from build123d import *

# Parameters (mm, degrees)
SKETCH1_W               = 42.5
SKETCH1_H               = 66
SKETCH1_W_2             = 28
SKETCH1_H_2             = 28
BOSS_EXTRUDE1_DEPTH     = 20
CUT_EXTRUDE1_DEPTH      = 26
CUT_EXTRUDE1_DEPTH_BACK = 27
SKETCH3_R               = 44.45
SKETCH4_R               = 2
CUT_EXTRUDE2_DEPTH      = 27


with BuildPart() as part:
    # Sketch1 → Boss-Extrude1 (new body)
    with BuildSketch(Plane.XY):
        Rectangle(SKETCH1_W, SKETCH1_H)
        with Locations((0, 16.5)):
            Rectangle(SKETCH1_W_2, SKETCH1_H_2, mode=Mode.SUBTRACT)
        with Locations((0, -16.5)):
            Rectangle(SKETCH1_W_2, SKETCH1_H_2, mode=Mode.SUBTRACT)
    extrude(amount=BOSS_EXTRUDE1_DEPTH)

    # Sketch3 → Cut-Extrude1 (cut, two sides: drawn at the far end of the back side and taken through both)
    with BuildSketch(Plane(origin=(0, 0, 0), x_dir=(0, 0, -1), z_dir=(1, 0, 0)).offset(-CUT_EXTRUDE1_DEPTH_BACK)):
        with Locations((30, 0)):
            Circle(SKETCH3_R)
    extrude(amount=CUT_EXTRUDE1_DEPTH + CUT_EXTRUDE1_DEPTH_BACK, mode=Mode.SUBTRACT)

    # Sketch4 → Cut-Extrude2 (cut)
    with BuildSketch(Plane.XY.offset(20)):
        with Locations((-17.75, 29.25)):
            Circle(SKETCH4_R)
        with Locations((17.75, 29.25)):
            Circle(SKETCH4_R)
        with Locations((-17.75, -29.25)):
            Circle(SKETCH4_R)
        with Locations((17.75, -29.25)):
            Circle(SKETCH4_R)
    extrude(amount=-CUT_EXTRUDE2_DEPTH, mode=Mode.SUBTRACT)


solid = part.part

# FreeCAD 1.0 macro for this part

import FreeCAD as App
import Part
import Sketcher

V = App.Vector


def add_polygon(sketch, points):
    """Adds a closed chain of lines whose ends are joined by coincident constraints."""
    first, n = sketch.GeometryCount, len(points)
    for a, b in zip(points, points[1:] + points[:1]):
        sketch.addGeometry(Part.LineSegment(App.Vector(*a, 0), App.Vector(*b, 0)), False)
    for i in range(n):
        sketch.addConstraint(Sketcher.Constraint("Coincident", first + i, 2, first + (i + 1) % n, 1))

doc = App.newDocument("Part")
params = doc.addObject("Spreadsheet::Sheet", "Params")
for row, (alias, value) in enumerate([
    ("sketch1_width", "28 mm"),
    ("sketch1_height", "66 mm"),
    ("sketch1_width2", "42.5 mm"),
    ("pad1_length", "20 mm"),
    ("sketch2_diameter", "88.9 mm"),
    ("sketch3_diameter", "4 mm"),
    ("pocket2_length", "27 mm"),
], start=1):
    params.set(f"A{row}", alias)
    params.set(f"B{row}", "=" + value)
    params.setAlias(f"B{row}", alias)

body = doc.addObject("PartDesign::Body", "Body")

# Sketch on XY plane
sketch1 = body.newObject("Sketcher::SketchObject", "Sketch")
sketch1.AttachmentSupport = (doc.getObject("XY_Plane"), [""])
sketch1.MapMode = "FlatFace"
add_polygon(sketch1, [(-21.25, 33), (-21.25, -33), (21.25, -33), (21.25, 33)])  # lines 0-3
add_polygon(sketch1, [(14, -30.5), (-14, -30.5), (-14, -2.5), (14, -2.5)])  # lines 4-7
add_polygon(sketch1, [(14, 2.5), (-14, 2.5), (-14, 30.5), (14, 30.5)])  # lines 8-11
sketch1.addConstraint(Sketcher.Constraint("Vertical", 0))
sketch1.addConstraint(Sketcher.Constraint("Horizontal", 1))
sketch1.addConstraint(Sketcher.Constraint("Vertical", 2))
sketch1.addConstraint(Sketcher.Constraint("Horizontal", 3))
sketch1.addConstraint(Sketcher.Constraint("Horizontal", 4))
sketch1.addConstraint(Sketcher.Constraint("Vertical", 5))
sketch1.addConstraint(Sketcher.Constraint("Horizontal", 6))
sketch1.addConstraint(Sketcher.Constraint("Vertical", 7))
sketch1.addConstraint(Sketcher.Constraint("Horizontal", 8))
sketch1.addConstraint(Sketcher.Constraint("Vertical", 9))
sketch1.addConstraint(Sketcher.Constraint("Horizontal", 10))
sketch1.addConstraint(Sketcher.Constraint("Vertical", 11))
sketch1.addConstraint(Sketcher.Constraint("Symmetric", 0, 2, 2, 2, -1, 1))
sketch1.addConstraint(Sketcher.Constraint("Symmetric", 6, 2, 8, 2, -1, 1))
sketch1.addConstraint(Sketcher.Constraint("Symmetric", 4, 2, 10, 2, -1, 1))
sketch1.addConstraint(Sketcher.Constraint("Vertical", 5, 2, 8, 2))
sketch1.addConstraint(Sketcher.Constraint("Equal", 10, 5))
sketch1.addConstraint(Sketcher.Constraint("DistanceX", 4, 2, 4, 1, 28.0))
sketch1.addConstraint(Sketcher.Constraint("DistanceY", 0, 2, 0, 1, 66.0))
sketch1.addConstraint(Sketcher.Constraint("DistanceX", 1, 1, 1, 2, 42.5))
sketch1.addConstraint(Sketcher.Constraint("DistanceY", 5, 2, 8, 2, 5.0))
sketch1.setExpression("Constraints[29]", "Params.sketch1_width")
sketch1.setExpression("Constraints[30]", "Params.sketch1_height")
sketch1.setExpression("Constraints[31]", "Params.sketch1_width2")
pad1 = body.newObject("PartDesign::Pad", "Pad")
pad1.Profile = sketch1
pad1.setExpression("Length", "Params.pad1_length")

# Sketch on YZ plane
sketch2 = body.newObject("Sketcher::SketchObject", "Sketch001")
sketch2.AttachmentSupport = (doc.getObject("YZ_Plane"), [""])
sketch2.MapMode = "FlatFace"
sketch2.addGeometry(Part.Circle(V(0, -30, 0), V(0, 0, 1), 44.45), False)
sketch2.addConstraint(Sketcher.Constraint("PointOnObject", 0, 3, -2))
sketch2.addConstraint(Sketcher.Constraint("Diameter", 0, 88.9))
sketch2.addConstraint(Sketcher.Constraint("DistanceY", 0, 3, -1, 1, 30.0))
sketch2.setExpression("Constraints[1]", "Params.sketch2_diameter")
pocket1 = body.newObject("PartDesign::Pocket", "Pocket")
pocket1.Profile = sketch2
pocket1.Type = "ThroughAll"
pocket1.Midplane = True

# Sketch on XY plane
sketch3 = body.newObject("Sketcher::SketchObject", "Sketch002")
sketch3.AttachmentSupport = (doc.getObject("XY_Plane"), [""])
sketch3.MapMode = "FlatFace"
sketch3.AttachmentOffset = App.Placement(V(0, 0, 20), App.Rotation())
sketch3.addGeometry(Part.Circle(V(-17.75, 29.25, 0), V(0, 0, 1), 2), False)
sketch3.addGeometry(Part.Circle(V(17.75, 29.25, 0), V(0, 0, 1), 2), False)
sketch3.addGeometry(Part.Circle(V(-17.75, -29.25, 0), V(0, 0, 1), 2), False)
sketch3.addGeometry(Part.Circle(V(17.75, -29.25, 0), V(0, 0, 1), 2), False)
sketch3.addConstraint(Sketcher.Constraint("Equal", 0, 1))
sketch3.addConstraint(Sketcher.Constraint("Equal", 1, 2))
sketch3.addConstraint(Sketcher.Constraint("Equal", 2, 3))
sketch3.addConstraint(Sketcher.Constraint("Symmetric", 1, 3, 2, 3, -1, 1))
sketch3.addConstraint(Sketcher.Constraint("Symmetric", 0, 3, 3, 3, -1, 1))
sketch3.addConstraint(Sketcher.Constraint("Symmetric", 0, 3, 1, 3, -2))
sketch3.addConstraint(Sketcher.Constraint("Diameter", 0, 4.0))
sketch3.addConstraint(Sketcher.Constraint("DistanceX", 0, 3, 1, 3, 35.5))
sketch3.addConstraint(Sketcher.Constraint("DistanceY", 2, 3, 0, 3, 58.5))
sketch3.setExpression("Constraints[6]", "Params.sketch3_diameter")
pocket2 = body.newObject("PartDesign::Pocket", "Pocket001")
pocket2.Profile = sketch3
pocket2.setExpression("Length", "Params.pocket2_length")

doc.recompute()
